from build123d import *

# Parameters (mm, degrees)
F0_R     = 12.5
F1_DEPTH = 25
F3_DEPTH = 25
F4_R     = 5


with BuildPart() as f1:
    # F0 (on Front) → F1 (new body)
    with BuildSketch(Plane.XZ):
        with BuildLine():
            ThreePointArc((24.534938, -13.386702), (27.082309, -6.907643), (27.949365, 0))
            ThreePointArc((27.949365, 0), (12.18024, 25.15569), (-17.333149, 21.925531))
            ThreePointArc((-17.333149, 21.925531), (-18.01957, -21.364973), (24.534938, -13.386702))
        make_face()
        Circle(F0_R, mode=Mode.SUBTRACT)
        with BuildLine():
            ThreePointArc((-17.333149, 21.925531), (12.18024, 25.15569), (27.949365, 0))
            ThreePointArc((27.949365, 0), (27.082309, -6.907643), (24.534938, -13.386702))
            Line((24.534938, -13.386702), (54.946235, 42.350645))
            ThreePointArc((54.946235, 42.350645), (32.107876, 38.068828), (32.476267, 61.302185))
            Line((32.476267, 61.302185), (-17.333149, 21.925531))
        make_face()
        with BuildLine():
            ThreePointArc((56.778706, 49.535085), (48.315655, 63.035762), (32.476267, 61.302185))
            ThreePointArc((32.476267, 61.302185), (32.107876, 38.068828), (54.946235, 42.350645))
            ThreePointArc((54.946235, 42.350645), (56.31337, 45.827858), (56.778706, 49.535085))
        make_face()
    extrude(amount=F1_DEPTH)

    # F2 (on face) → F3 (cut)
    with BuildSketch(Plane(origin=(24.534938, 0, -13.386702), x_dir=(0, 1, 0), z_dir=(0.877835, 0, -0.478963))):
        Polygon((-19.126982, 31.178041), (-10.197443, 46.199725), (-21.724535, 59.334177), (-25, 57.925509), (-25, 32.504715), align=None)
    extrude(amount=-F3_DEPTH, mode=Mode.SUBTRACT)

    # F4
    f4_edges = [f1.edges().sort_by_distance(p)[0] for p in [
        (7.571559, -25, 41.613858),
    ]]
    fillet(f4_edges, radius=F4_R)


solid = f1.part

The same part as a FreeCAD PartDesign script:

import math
import FreeCAD as App
import Part
import Sketcher

V = App.Vector
Q = App.Units.Quantity


def edges_at(feature, points):
    """Names of the edges that pass closest to the given points."""
    edges = feature.Shape.Edges
    near = lambda p: min(range(len(edges)), key=lambda i: edges[i].distToShape(Part.Vertex(*p))[0])
    return sorted({f"Edge{near(p) + 1}" for p in points})


def add_polygon(sketch, points):
    """Adds a closed chain of lines whose ends are joined by coincident constraints."""
    first, n = sketch.GeometryCount, len(points)
    for a, b in zip(points, points[1:] + points[:1]):
        sketch.addGeometry(Part.LineSegment(App.Vector(*a, 0), App.Vector(*b, 0)), False)
    for i in range(n):
        sketch.addConstraint(Sketcher.Constraint("Coincident", first + i, 2, first + (i + 1) % n, 1))

doc = App.newDocument("Part")
params = doc.addObject("Spreadsheet::Sheet", "Params")
for row, (alias, value) in enumerate([
    ("sketch1_diameter", "25 mm"),
    ("sketch1_radius", "15.000001 mm"),
    ("pad1_length", "25 mm"),
    ("pocket1_length", "25 mm"),
    ("fillet_radius", "5 mm"),
], start=1):
    params.set(f"A{row}", alias)
    params.set(f"B{row}", "=" + value)
    params.setAlias(f"B{row}", alias)

body = doc.addObject("PartDesign::Body", "Body")

# Sketch on XZ plane
sketch1 = body.newObject("Sketcher::SketchObject", "Sketch")
sketch1.AttachmentSupport = (doc.getObject("XZ_Plane"), [""])
sketch1.MapMode = "FlatFace"
sketch1.addGeometry([
    Part.ArcOfCircle(Part.Circle(V(0, 0, 0), V(0, 0, 1), 28), math.radians(128), math.radians(331)),  # 0
    Part.LineSegment(V(25, -13, 0), V(55, 42, 0)),  # 1
    Part.ArcOfCircle(Part.Circle(V(42, 50, 0), V(0, 0, 1), 15), math.radians(-29), math.radians(0)),  # 2
    Part.ArcOfCircle(Part.Circle(V(42, 50, 0), V(0, 0, 1), 15), math.radians(0), math.radians(128)),  # 3
    Part.LineSegment(V(32, 61, 0), V(-17, 22, 0)),  # 4
    Part.Circle(V(0, 0, 0), V(0, 0, 1), 12),  # 5
], False)
sketch1.addConstraint([
    Sketcher.Constraint("Tangent", 0, 2, 1, 1),
    Sketcher.Constraint("Tangent", 1, 2, 2, 1),
    Sketcher.Constraint("Tangent", 2, 2, 3, 1),
    Sketcher.Constraint("Tangent", 3, 2, 4, 1),
    Sketcher.Constraint("Tangent", 4, 2, 0, 1),
    Sketcher.Constraint("Coincident", 0, 3, -1, 1),
    Sketcher.Constraint("Coincident", 5, 3, -1, 1),
    Sketcher.Constraint("Horizontal", 3, 3, 2, 2),
    Sketcher.Constraint("Equal", 1, 4),
    Sketcher.Constraint("Diameter", 5, Q("25 mm")),
    Sketcher.Constraint("Radius", 3, Q("15.000001 mm")),
    Sketcher.Constraint("Radius", 0, Q("27.949364 mm")),
    Sketcher.Constraint("DistanceY", 0, 2, 0, 3, Q("13.386702 mm")),
    Sketcher.Constraint("DistanceY", 3, 3, 3, 2, Q("11.767101 mm")),
])
sketch1.setExpression("Constraints[9]", "Params.sketch1_diameter")
sketch1.setExpression("Constraints[10]", "Params.sketch1_radius")
pad1 = body.newObject("PartDesign::Pad", "Pad")
pad1.Profile = sketch1
pad1.setExpression("Length", "Params.pad1_length")

# Sketch on an angled plane
sketch2 = body.newObject("Sketcher::SketchObject", "Sketch001")
sketch2.Placement = App.Placement(V(24.534938, 0, -13.386702), App.Rotation(V(0, 1, 0), V(0.478963038, 0, 0.877835069), V(0.877835069, 0, -0.478963038), "ZXY"))
add_polygon(sketch2, [(-19.1, 31.2), (-10.2, 46.2), (-21.7, 59.3), (-25, 57.9), (-25, 32.5)])  # lines 0-4
sketch2.addConstraint([
    Sketcher.Constraint("Vertical", 3),
    Sketcher.Constraint("Equal", 0, 1),
    Sketcher.Constraint("DistanceX", 2, 2, -1, 1, Q("25 mm")),
    Sketcher.Constraint("Distance", 2, Q("3.565532 mm")),
    Sketcher.Constraint("DistanceY", 3, 2, 3, 1, Q("25.420794 mm")),
    Sketcher.Constraint("DistanceY", -1, 1, 2, 2, Q("57.925509 mm")),
    Sketcher.Constraint("DistanceY", -1, 1, 4, 2, Q("31.178041 mm")),
    Sketcher.Constraint("DistanceY", 3, 2, 0, 2, Q("13.69501 mm")),
    Sketcher.Constraint("DistanceX", 4, 2, 0, 2, Q("8.929539 mm")),
    Sketcher.Constraint("Distance", 4, Q("6.020997 mm")),
])
pocket1 = body.newObject("PartDesign::Pocket", "Pocket")
pocket1.Profile = sketch2
pocket1.setExpression("Length", "Params.pocket1_length")
doc.recompute()

fillet = body.newObject("PartDesign::Fillet", "Fillet")
fillet.Base = (pocket1, edges_at(pocket1, [(7.572, -25, 41.614)]))
fillet.setExpression("Radius", "Params.fillet_radius")

doc.recompute()
